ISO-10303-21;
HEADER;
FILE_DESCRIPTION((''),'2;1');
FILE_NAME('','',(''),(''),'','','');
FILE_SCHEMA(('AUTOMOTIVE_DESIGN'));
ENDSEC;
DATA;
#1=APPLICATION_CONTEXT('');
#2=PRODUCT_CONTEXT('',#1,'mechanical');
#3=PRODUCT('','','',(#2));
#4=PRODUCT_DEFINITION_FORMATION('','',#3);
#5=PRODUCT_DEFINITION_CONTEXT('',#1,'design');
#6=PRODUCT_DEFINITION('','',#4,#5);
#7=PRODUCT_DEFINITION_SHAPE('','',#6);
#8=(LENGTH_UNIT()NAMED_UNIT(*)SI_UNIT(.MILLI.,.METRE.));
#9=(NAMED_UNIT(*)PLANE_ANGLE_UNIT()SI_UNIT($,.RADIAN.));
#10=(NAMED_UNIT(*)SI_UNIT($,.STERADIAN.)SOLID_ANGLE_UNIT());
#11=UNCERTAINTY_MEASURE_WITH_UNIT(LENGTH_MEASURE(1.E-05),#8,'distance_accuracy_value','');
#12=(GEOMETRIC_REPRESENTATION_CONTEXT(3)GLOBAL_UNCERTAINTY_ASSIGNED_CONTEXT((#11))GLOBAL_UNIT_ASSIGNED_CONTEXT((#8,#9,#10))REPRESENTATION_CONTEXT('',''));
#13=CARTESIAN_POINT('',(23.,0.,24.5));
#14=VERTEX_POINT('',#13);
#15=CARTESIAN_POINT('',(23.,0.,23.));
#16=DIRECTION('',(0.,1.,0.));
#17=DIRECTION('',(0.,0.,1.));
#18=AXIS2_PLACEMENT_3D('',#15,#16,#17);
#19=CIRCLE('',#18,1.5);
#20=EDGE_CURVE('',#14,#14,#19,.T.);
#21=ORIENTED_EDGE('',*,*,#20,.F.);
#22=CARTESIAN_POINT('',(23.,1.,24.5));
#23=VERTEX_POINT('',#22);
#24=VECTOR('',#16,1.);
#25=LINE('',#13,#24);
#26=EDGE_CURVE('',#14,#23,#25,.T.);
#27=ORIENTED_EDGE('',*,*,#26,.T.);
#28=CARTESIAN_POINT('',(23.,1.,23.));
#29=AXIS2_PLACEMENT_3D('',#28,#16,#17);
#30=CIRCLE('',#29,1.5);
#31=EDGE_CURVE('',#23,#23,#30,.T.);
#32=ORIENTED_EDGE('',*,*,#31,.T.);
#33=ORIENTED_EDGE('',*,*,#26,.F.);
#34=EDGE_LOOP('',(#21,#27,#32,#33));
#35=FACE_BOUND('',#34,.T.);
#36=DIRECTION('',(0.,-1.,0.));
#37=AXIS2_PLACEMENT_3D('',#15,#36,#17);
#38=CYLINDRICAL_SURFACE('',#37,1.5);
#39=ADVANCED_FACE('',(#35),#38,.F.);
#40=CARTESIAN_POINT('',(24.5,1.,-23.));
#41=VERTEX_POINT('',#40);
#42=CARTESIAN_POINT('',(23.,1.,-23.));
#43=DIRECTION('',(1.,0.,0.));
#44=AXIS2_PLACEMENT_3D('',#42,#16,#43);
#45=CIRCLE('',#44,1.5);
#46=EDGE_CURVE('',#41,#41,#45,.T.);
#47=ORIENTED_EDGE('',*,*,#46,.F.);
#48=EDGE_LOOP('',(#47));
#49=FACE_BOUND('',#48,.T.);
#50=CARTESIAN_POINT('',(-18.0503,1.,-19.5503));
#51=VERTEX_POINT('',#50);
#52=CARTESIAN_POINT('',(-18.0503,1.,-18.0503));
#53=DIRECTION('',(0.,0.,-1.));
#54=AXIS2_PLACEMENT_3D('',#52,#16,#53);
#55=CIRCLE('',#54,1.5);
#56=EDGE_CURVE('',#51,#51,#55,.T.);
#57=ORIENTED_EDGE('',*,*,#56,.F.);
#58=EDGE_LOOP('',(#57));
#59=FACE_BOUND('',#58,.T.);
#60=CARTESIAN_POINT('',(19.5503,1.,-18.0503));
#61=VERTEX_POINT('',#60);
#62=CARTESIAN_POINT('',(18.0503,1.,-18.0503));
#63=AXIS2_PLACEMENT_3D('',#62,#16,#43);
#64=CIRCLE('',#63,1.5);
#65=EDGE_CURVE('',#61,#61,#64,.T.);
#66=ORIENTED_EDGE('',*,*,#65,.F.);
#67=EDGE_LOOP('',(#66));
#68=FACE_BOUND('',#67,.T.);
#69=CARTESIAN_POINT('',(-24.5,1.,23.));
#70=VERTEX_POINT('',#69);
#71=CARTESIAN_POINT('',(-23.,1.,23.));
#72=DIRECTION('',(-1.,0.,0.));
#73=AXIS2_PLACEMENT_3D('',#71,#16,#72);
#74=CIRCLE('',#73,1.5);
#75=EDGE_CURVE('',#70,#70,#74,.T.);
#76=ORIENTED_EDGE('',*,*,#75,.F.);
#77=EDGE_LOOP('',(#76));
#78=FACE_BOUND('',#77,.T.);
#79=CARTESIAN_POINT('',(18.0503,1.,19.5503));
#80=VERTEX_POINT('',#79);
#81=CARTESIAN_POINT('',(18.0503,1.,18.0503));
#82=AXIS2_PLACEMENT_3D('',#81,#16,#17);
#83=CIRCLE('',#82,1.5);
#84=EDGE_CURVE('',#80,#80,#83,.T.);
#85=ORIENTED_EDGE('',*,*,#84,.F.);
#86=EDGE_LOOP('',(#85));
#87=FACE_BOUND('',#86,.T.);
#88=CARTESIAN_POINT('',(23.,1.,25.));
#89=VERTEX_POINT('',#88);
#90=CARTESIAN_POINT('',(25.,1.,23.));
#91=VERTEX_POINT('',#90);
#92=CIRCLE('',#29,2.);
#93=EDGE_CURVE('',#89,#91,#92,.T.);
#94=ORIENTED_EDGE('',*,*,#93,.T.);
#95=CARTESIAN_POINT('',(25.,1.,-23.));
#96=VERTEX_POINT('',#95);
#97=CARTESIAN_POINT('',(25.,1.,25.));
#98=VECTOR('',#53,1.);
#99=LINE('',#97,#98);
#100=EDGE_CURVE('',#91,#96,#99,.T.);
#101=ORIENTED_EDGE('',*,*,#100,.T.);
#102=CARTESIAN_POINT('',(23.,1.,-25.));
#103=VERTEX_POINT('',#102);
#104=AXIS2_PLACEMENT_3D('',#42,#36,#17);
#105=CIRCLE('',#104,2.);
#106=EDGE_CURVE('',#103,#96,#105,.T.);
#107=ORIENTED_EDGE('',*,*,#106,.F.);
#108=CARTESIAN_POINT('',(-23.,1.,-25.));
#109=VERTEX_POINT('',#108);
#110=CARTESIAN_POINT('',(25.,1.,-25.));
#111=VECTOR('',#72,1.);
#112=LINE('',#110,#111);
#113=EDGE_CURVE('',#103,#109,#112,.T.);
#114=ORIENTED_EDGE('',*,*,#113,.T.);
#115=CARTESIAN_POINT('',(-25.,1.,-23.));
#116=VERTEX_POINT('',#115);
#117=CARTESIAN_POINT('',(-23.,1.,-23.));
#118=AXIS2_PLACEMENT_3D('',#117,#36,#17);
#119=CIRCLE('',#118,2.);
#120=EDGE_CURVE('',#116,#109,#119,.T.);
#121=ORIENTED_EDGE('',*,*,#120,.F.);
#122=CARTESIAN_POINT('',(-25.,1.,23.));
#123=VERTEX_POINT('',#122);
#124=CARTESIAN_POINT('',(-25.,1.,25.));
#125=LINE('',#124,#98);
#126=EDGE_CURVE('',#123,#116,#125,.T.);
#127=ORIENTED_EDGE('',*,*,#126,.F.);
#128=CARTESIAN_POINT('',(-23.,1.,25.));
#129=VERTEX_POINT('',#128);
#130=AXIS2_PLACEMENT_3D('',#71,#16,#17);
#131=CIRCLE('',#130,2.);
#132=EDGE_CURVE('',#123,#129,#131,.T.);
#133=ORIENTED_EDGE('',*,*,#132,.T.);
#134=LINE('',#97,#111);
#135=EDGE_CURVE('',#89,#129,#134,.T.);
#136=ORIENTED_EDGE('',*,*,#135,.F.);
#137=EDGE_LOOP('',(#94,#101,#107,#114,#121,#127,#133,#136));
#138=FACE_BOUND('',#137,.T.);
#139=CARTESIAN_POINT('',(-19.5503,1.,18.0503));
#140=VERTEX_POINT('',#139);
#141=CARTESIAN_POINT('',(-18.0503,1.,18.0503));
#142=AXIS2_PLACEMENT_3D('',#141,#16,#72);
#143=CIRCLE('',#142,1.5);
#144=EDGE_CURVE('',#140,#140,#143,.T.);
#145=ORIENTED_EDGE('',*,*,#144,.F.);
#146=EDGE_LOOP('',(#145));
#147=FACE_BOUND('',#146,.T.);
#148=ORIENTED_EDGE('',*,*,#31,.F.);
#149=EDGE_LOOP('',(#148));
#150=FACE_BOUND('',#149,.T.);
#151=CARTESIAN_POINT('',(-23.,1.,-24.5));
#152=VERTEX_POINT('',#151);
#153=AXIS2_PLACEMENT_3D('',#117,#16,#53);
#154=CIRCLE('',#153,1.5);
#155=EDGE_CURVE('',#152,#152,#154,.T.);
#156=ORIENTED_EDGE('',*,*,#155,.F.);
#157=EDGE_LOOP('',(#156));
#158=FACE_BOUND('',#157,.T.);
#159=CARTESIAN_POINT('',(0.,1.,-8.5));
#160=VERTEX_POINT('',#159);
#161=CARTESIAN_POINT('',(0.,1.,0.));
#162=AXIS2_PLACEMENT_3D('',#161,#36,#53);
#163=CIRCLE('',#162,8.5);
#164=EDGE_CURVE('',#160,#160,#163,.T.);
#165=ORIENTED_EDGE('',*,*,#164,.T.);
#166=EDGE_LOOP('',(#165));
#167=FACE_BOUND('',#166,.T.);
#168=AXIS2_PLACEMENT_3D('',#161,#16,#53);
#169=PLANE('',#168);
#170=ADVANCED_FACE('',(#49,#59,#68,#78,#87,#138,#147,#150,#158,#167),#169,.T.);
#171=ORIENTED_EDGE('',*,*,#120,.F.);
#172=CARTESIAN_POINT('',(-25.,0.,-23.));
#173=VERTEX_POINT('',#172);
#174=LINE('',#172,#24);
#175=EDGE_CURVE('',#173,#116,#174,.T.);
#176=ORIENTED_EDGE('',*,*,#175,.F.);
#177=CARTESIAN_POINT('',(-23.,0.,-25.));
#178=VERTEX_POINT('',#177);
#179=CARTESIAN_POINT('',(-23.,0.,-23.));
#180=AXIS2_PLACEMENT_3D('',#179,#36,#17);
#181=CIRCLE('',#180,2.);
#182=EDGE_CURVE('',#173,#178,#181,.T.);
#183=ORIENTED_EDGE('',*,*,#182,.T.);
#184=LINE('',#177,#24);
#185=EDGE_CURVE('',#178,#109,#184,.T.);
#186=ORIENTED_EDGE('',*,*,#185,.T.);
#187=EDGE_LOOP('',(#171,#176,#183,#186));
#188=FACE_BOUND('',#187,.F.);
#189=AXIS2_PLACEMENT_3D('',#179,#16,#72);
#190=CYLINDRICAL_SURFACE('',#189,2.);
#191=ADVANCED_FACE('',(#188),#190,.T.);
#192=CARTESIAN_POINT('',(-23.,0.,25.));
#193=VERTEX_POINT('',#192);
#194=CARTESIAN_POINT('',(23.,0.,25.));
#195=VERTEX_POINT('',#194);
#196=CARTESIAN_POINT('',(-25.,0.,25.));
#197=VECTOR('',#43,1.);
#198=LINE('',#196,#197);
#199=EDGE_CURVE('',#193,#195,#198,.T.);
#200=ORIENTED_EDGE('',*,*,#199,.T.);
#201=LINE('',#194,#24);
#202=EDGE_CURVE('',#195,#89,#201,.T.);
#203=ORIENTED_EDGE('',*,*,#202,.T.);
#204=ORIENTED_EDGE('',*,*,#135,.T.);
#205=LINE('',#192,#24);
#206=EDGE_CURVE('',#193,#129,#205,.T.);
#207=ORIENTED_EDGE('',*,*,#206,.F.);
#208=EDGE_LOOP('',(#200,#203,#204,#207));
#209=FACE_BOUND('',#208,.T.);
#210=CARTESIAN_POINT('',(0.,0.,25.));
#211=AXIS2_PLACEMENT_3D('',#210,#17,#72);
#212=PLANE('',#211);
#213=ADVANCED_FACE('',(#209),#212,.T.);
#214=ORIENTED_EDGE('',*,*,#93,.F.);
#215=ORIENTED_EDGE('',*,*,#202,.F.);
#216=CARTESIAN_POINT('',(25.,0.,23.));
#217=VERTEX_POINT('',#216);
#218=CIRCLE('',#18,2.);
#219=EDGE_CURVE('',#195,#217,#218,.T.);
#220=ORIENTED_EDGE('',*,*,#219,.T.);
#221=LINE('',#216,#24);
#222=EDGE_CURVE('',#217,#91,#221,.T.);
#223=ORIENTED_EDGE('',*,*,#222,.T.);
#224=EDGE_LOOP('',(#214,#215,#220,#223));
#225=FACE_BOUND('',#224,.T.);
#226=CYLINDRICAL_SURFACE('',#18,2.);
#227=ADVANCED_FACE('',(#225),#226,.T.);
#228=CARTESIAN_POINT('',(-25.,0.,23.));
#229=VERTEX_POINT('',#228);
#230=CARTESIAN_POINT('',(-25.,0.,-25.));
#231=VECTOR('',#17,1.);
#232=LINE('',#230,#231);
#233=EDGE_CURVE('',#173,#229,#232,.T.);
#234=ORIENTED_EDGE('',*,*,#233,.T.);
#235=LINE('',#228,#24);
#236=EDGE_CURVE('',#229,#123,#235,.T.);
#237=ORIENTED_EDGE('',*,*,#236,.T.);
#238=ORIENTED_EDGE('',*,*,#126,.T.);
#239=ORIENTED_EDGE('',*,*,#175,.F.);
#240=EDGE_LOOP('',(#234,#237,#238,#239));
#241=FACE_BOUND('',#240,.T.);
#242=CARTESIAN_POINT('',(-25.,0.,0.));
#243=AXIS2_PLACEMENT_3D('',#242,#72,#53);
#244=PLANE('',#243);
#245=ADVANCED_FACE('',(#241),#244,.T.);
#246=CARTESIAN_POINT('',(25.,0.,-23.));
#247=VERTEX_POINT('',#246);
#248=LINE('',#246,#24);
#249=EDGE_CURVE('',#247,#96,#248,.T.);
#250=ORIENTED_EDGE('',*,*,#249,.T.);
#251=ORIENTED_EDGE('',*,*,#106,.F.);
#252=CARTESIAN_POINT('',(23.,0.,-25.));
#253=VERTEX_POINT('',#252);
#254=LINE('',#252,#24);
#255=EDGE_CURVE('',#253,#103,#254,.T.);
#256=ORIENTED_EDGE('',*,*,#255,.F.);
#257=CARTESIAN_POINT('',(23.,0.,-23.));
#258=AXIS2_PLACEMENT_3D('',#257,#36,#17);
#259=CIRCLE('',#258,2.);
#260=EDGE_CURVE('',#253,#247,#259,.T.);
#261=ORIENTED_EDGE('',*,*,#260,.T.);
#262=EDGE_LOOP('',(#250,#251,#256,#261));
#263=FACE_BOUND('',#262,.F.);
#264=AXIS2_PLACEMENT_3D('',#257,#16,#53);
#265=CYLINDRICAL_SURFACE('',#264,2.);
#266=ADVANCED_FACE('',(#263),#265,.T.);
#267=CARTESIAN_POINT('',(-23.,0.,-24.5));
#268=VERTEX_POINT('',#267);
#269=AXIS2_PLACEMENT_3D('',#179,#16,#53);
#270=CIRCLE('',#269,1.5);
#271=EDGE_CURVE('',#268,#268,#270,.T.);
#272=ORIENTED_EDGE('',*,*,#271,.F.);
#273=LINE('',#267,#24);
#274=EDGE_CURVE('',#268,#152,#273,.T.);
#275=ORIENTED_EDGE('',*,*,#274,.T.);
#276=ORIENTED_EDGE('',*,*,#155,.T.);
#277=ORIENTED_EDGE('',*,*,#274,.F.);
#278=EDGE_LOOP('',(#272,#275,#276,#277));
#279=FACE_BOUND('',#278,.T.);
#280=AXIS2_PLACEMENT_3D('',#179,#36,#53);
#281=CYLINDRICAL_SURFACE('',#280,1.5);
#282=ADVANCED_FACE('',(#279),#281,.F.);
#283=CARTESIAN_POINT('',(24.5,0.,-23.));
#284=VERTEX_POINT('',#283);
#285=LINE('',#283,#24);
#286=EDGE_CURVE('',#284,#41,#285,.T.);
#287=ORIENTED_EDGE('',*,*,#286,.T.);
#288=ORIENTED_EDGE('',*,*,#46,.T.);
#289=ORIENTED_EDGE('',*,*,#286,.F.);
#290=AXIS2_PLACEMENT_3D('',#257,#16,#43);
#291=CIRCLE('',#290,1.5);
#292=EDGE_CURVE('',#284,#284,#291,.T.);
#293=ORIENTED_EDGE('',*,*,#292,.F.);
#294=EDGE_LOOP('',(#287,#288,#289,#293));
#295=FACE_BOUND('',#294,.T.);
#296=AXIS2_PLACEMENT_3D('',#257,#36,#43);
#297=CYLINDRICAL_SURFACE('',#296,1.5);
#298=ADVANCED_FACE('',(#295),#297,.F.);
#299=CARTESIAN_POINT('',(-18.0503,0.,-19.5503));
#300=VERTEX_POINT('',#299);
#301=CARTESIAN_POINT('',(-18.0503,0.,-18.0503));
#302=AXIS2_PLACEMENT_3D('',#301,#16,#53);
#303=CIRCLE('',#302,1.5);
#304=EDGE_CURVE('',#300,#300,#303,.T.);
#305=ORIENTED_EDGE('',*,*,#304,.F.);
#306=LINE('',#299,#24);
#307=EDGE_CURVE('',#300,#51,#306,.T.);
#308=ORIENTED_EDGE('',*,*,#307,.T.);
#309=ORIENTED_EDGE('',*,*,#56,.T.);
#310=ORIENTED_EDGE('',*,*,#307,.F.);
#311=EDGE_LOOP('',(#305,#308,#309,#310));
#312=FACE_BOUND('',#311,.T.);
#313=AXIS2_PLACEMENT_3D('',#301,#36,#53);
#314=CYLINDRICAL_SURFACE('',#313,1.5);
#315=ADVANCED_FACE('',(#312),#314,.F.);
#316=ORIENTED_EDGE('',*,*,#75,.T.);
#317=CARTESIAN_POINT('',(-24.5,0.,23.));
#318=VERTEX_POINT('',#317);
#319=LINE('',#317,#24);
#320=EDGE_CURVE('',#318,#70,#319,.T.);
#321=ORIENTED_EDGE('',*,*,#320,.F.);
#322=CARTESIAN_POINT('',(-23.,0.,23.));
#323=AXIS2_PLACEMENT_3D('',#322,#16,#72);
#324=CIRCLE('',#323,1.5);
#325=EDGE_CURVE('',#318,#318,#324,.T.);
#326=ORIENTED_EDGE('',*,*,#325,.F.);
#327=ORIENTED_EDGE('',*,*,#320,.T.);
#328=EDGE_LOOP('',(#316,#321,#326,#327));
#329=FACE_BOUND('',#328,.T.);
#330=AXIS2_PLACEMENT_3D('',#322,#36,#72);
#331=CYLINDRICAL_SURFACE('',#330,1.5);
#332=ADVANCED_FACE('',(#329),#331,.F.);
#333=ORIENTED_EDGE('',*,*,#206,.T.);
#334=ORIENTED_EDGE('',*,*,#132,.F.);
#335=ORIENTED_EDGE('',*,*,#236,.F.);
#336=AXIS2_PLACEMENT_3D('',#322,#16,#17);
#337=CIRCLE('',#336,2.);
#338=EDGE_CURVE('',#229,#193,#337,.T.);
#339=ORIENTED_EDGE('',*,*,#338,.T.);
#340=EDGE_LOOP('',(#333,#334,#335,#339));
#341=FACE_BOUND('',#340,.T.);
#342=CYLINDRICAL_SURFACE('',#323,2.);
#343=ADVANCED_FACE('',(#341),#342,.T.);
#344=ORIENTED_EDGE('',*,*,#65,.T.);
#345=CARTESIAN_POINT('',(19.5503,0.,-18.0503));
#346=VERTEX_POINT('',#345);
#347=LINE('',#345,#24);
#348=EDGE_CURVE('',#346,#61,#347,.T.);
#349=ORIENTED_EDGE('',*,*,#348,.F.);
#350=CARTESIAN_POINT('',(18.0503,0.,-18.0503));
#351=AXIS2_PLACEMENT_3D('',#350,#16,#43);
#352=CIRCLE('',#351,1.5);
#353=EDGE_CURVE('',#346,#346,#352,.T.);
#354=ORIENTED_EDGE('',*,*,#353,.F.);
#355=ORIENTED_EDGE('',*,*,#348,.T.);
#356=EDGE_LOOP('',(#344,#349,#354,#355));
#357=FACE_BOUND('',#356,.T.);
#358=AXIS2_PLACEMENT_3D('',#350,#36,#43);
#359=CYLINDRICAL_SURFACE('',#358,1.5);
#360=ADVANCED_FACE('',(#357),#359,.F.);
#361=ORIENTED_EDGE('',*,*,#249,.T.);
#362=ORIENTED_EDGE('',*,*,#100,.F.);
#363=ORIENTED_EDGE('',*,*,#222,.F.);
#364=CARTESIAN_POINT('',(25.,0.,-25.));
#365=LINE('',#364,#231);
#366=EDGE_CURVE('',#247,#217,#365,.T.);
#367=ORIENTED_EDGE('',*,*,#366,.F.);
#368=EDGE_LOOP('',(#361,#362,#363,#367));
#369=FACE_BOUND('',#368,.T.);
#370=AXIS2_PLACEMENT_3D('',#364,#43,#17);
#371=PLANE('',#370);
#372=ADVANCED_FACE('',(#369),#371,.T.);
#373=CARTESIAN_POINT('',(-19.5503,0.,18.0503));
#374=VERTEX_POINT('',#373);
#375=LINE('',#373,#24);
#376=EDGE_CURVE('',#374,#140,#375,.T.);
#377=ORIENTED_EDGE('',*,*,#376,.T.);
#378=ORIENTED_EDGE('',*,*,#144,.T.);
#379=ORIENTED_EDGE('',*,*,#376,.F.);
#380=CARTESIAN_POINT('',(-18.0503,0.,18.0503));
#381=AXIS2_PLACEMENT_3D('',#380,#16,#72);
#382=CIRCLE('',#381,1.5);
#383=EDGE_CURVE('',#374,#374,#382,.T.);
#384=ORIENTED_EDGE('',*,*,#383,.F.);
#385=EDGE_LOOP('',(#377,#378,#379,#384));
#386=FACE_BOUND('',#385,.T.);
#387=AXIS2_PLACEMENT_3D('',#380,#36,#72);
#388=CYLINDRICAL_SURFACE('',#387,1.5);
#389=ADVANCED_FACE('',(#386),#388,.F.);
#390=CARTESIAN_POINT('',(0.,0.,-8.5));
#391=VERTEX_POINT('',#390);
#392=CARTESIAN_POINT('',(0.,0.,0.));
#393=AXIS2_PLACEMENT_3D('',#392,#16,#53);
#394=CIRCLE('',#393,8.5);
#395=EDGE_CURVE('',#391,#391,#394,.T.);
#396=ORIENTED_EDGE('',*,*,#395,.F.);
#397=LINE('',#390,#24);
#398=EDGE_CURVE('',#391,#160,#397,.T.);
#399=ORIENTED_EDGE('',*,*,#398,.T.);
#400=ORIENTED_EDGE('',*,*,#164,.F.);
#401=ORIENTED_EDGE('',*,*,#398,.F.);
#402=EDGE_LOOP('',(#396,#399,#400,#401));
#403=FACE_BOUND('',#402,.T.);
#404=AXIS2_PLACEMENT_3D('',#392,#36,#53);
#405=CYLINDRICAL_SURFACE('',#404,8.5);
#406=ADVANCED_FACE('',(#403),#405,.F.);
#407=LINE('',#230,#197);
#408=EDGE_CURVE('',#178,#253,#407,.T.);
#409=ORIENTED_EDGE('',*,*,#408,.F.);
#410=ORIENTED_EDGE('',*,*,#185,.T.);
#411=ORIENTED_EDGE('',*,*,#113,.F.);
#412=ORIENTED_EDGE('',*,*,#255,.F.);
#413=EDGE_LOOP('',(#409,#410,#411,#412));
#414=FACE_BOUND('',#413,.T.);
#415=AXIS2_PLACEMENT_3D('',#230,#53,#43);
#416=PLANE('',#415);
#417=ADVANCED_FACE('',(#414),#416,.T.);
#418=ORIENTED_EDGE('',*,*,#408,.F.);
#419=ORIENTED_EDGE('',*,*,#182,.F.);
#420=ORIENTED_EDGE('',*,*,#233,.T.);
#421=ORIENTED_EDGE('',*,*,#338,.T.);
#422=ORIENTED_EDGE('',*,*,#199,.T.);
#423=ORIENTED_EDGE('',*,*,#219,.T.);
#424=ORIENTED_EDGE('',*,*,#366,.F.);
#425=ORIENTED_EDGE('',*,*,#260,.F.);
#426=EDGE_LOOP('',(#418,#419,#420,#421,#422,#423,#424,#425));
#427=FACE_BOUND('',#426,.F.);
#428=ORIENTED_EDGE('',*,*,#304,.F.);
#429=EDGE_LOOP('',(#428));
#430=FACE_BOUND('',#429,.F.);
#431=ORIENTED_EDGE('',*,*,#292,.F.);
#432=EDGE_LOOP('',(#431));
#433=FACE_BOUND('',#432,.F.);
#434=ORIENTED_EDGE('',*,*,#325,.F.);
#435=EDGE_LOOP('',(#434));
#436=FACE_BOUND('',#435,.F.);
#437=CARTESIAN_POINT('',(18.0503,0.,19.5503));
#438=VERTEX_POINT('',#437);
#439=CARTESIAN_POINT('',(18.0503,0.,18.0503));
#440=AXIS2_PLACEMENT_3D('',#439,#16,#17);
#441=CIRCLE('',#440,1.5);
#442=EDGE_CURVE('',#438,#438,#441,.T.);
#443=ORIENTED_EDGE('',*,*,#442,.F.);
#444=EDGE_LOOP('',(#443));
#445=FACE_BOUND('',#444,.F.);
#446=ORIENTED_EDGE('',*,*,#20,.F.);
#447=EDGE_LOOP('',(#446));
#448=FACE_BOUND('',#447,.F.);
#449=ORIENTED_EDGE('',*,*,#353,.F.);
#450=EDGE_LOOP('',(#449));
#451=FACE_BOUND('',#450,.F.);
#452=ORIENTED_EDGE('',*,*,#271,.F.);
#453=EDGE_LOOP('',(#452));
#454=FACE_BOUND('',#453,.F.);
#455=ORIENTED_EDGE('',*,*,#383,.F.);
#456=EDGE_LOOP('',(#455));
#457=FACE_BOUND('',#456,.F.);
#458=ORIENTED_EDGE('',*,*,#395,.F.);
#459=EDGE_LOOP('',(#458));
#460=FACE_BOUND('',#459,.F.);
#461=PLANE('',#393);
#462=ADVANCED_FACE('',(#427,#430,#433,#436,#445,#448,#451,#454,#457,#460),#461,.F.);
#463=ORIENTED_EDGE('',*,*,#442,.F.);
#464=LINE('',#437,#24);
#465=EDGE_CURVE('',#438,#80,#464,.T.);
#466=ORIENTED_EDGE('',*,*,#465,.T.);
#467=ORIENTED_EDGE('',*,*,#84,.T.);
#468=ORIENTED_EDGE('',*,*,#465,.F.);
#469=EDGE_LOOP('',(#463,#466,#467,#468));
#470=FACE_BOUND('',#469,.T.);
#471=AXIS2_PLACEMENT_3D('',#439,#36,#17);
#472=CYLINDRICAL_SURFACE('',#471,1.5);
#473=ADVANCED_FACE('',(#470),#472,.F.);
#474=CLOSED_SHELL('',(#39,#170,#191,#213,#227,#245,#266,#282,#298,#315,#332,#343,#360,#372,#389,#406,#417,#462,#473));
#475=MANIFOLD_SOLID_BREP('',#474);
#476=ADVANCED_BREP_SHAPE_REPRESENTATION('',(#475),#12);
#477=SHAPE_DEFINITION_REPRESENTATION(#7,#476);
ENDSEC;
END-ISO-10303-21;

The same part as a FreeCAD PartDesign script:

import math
import FreeCAD as App
import Part
import Sketcher


def edges_at(feature, points):
    """Names of the edges that pass closest to the given points."""
    edges = feature.Shape.Edges
    near = lambda p: min(range(len(edges)), key=lambda i: edges[i].distToShape(Part.Vertex(*p))[0])
    return sorted({f"Edge{near(p) + 1}" for p in points})

doc = App.newDocument("Part")
body = doc.addObject("PartDesign::Body", "Body")

sketch1 = body.newObject("Sketcher::SketchObject", "Sketch")
sketch1.AttachmentSupport = (doc.getObject("XZ_Plane"), [""])
sketch1.MapMode = "FlatFace"
sketch1.addGeometry(Part.LineSegment(App.Vector(-25, 25, 0), App.Vector(0, 25, 0)), False)
sketch1.addGeometry(Part.LineSegment(App.Vector(0, 25, 0), App.Vector(0, 8.5, 0)), False)
sketch1.addGeometry(Part.ArcOfCircle(Part.Circle(App.Vector(0, 0, 0), App.Vector(0, 0, 1), 8.5), math.radians(90), math.radians(180)), False)
sketch1.addGeometry(Part.LineSegment(App.Vector(-8.5, 0, 0), App.Vector(-25, 0, 0)), False)
sketch1.addGeometry(Part.LineSegment(App.Vector(-25, 0, 0), App.Vector(-25, 25, 0)), False)
sketch1.addGeometry(Part.Circle(App.Vector(-18.0503, 18.0503, 0), App.Vector(0, 0, 1), 1.5), False)
sketch1.addGeometry(Part.Circle(App.Vector(-23, 23, 0), App.Vector(0, 0, 1), 1.5), False)
sketch1.addConstraint(Sketcher.Constraint("Coincident", 0, 2, 1, 1))
sketch1.addConstraint(Sketcher.Constraint("Coincident", 1, 2, 2, 1))
sketch1.addConstraint(Sketcher.Constraint("Coincident", 2, 2, 3, 1))
sketch1.addConstraint(Sketcher.Constraint("Coincident", 3, 2, 4, 1))
sketch1.addConstraint(Sketcher.Constraint("Coincident", 4, 2, 0, 1))
sketch1.addConstraint(Sketcher.Constraint("Horizontal", 0))
sketch1.addConstraint(Sketcher.Constraint("Vertical", 1))
sketch1.addConstraint(Sketcher.Constraint("Horizontal", 3))
sketch1.addConstraint(Sketcher.Constraint("Vertical", 4))
sketch1.addConstraint(Sketcher.Constraint("Coincident", 2, 3, -1, 1))
sketch1.addConstraint(Sketcher.Constraint("Equal", 5, 6))
sketch1.addConstraint(Sketcher.Constraint("PointOnObject", 0, 2, -2))
sketch1.addConstraint(Sketcher.Constraint("PointOnObject", 2, 2, -1))
sketch1.addConstraint(Sketcher.Constraint("Equal", 3, 1))
sketch1.addConstraint(Sketcher.Constraint("Diameter", 5, 3.0))
sketch1.addConstraint(Sketcher.Constraint("Radius", 2, 8.5))
sketch1.addConstraint(Sketcher.Constraint("DistanceX", 0, 1, 0, 2, 25.0))
sketch1.addConstraint(Sketcher.Constraint("DistanceX", 6, 3, -1, 1, 23.0))
sketch1.addConstraint(Sketcher.Constraint("DistanceY", -1, 1, 6, 3, 23.0))
sketch1.addConstraint(Sketcher.Constraint("DistanceX", 5, 3, -1, 1, 18.0503))
sketch1.addConstraint(Sketcher.Constraint("DistanceY", -1, 1, 5, 3, 18.0503))
pad1 = body.newObject("PartDesign::Pad", "Pad")
pad1.Profile = sketch1
pad1.Length = 1
pad1.Reversed = True
doc.recompute()

polarpattern = body.newObject("PartDesign::PolarPattern", "PolarPattern")
polarpattern.Originals = [pad1]
polarpattern.Axis = (doc.getObject("Y_Axis"), [""])
polarpattern.Angle = 360
polarpattern.Occurrences = 4
body.Tip = polarpattern
doc.recompute()

fillet = body.newObject("PartDesign::Fillet", "Fillet")
fillet.Base = (polarpattern, edges_at(polarpattern, [
    (-25, 0.5, 25),
    (-25, 0.5, -25),
    (25, 0.5, 25),
    (25, 0.5, -25),
]))
fillet.Radius = 2

doc.recompute()
